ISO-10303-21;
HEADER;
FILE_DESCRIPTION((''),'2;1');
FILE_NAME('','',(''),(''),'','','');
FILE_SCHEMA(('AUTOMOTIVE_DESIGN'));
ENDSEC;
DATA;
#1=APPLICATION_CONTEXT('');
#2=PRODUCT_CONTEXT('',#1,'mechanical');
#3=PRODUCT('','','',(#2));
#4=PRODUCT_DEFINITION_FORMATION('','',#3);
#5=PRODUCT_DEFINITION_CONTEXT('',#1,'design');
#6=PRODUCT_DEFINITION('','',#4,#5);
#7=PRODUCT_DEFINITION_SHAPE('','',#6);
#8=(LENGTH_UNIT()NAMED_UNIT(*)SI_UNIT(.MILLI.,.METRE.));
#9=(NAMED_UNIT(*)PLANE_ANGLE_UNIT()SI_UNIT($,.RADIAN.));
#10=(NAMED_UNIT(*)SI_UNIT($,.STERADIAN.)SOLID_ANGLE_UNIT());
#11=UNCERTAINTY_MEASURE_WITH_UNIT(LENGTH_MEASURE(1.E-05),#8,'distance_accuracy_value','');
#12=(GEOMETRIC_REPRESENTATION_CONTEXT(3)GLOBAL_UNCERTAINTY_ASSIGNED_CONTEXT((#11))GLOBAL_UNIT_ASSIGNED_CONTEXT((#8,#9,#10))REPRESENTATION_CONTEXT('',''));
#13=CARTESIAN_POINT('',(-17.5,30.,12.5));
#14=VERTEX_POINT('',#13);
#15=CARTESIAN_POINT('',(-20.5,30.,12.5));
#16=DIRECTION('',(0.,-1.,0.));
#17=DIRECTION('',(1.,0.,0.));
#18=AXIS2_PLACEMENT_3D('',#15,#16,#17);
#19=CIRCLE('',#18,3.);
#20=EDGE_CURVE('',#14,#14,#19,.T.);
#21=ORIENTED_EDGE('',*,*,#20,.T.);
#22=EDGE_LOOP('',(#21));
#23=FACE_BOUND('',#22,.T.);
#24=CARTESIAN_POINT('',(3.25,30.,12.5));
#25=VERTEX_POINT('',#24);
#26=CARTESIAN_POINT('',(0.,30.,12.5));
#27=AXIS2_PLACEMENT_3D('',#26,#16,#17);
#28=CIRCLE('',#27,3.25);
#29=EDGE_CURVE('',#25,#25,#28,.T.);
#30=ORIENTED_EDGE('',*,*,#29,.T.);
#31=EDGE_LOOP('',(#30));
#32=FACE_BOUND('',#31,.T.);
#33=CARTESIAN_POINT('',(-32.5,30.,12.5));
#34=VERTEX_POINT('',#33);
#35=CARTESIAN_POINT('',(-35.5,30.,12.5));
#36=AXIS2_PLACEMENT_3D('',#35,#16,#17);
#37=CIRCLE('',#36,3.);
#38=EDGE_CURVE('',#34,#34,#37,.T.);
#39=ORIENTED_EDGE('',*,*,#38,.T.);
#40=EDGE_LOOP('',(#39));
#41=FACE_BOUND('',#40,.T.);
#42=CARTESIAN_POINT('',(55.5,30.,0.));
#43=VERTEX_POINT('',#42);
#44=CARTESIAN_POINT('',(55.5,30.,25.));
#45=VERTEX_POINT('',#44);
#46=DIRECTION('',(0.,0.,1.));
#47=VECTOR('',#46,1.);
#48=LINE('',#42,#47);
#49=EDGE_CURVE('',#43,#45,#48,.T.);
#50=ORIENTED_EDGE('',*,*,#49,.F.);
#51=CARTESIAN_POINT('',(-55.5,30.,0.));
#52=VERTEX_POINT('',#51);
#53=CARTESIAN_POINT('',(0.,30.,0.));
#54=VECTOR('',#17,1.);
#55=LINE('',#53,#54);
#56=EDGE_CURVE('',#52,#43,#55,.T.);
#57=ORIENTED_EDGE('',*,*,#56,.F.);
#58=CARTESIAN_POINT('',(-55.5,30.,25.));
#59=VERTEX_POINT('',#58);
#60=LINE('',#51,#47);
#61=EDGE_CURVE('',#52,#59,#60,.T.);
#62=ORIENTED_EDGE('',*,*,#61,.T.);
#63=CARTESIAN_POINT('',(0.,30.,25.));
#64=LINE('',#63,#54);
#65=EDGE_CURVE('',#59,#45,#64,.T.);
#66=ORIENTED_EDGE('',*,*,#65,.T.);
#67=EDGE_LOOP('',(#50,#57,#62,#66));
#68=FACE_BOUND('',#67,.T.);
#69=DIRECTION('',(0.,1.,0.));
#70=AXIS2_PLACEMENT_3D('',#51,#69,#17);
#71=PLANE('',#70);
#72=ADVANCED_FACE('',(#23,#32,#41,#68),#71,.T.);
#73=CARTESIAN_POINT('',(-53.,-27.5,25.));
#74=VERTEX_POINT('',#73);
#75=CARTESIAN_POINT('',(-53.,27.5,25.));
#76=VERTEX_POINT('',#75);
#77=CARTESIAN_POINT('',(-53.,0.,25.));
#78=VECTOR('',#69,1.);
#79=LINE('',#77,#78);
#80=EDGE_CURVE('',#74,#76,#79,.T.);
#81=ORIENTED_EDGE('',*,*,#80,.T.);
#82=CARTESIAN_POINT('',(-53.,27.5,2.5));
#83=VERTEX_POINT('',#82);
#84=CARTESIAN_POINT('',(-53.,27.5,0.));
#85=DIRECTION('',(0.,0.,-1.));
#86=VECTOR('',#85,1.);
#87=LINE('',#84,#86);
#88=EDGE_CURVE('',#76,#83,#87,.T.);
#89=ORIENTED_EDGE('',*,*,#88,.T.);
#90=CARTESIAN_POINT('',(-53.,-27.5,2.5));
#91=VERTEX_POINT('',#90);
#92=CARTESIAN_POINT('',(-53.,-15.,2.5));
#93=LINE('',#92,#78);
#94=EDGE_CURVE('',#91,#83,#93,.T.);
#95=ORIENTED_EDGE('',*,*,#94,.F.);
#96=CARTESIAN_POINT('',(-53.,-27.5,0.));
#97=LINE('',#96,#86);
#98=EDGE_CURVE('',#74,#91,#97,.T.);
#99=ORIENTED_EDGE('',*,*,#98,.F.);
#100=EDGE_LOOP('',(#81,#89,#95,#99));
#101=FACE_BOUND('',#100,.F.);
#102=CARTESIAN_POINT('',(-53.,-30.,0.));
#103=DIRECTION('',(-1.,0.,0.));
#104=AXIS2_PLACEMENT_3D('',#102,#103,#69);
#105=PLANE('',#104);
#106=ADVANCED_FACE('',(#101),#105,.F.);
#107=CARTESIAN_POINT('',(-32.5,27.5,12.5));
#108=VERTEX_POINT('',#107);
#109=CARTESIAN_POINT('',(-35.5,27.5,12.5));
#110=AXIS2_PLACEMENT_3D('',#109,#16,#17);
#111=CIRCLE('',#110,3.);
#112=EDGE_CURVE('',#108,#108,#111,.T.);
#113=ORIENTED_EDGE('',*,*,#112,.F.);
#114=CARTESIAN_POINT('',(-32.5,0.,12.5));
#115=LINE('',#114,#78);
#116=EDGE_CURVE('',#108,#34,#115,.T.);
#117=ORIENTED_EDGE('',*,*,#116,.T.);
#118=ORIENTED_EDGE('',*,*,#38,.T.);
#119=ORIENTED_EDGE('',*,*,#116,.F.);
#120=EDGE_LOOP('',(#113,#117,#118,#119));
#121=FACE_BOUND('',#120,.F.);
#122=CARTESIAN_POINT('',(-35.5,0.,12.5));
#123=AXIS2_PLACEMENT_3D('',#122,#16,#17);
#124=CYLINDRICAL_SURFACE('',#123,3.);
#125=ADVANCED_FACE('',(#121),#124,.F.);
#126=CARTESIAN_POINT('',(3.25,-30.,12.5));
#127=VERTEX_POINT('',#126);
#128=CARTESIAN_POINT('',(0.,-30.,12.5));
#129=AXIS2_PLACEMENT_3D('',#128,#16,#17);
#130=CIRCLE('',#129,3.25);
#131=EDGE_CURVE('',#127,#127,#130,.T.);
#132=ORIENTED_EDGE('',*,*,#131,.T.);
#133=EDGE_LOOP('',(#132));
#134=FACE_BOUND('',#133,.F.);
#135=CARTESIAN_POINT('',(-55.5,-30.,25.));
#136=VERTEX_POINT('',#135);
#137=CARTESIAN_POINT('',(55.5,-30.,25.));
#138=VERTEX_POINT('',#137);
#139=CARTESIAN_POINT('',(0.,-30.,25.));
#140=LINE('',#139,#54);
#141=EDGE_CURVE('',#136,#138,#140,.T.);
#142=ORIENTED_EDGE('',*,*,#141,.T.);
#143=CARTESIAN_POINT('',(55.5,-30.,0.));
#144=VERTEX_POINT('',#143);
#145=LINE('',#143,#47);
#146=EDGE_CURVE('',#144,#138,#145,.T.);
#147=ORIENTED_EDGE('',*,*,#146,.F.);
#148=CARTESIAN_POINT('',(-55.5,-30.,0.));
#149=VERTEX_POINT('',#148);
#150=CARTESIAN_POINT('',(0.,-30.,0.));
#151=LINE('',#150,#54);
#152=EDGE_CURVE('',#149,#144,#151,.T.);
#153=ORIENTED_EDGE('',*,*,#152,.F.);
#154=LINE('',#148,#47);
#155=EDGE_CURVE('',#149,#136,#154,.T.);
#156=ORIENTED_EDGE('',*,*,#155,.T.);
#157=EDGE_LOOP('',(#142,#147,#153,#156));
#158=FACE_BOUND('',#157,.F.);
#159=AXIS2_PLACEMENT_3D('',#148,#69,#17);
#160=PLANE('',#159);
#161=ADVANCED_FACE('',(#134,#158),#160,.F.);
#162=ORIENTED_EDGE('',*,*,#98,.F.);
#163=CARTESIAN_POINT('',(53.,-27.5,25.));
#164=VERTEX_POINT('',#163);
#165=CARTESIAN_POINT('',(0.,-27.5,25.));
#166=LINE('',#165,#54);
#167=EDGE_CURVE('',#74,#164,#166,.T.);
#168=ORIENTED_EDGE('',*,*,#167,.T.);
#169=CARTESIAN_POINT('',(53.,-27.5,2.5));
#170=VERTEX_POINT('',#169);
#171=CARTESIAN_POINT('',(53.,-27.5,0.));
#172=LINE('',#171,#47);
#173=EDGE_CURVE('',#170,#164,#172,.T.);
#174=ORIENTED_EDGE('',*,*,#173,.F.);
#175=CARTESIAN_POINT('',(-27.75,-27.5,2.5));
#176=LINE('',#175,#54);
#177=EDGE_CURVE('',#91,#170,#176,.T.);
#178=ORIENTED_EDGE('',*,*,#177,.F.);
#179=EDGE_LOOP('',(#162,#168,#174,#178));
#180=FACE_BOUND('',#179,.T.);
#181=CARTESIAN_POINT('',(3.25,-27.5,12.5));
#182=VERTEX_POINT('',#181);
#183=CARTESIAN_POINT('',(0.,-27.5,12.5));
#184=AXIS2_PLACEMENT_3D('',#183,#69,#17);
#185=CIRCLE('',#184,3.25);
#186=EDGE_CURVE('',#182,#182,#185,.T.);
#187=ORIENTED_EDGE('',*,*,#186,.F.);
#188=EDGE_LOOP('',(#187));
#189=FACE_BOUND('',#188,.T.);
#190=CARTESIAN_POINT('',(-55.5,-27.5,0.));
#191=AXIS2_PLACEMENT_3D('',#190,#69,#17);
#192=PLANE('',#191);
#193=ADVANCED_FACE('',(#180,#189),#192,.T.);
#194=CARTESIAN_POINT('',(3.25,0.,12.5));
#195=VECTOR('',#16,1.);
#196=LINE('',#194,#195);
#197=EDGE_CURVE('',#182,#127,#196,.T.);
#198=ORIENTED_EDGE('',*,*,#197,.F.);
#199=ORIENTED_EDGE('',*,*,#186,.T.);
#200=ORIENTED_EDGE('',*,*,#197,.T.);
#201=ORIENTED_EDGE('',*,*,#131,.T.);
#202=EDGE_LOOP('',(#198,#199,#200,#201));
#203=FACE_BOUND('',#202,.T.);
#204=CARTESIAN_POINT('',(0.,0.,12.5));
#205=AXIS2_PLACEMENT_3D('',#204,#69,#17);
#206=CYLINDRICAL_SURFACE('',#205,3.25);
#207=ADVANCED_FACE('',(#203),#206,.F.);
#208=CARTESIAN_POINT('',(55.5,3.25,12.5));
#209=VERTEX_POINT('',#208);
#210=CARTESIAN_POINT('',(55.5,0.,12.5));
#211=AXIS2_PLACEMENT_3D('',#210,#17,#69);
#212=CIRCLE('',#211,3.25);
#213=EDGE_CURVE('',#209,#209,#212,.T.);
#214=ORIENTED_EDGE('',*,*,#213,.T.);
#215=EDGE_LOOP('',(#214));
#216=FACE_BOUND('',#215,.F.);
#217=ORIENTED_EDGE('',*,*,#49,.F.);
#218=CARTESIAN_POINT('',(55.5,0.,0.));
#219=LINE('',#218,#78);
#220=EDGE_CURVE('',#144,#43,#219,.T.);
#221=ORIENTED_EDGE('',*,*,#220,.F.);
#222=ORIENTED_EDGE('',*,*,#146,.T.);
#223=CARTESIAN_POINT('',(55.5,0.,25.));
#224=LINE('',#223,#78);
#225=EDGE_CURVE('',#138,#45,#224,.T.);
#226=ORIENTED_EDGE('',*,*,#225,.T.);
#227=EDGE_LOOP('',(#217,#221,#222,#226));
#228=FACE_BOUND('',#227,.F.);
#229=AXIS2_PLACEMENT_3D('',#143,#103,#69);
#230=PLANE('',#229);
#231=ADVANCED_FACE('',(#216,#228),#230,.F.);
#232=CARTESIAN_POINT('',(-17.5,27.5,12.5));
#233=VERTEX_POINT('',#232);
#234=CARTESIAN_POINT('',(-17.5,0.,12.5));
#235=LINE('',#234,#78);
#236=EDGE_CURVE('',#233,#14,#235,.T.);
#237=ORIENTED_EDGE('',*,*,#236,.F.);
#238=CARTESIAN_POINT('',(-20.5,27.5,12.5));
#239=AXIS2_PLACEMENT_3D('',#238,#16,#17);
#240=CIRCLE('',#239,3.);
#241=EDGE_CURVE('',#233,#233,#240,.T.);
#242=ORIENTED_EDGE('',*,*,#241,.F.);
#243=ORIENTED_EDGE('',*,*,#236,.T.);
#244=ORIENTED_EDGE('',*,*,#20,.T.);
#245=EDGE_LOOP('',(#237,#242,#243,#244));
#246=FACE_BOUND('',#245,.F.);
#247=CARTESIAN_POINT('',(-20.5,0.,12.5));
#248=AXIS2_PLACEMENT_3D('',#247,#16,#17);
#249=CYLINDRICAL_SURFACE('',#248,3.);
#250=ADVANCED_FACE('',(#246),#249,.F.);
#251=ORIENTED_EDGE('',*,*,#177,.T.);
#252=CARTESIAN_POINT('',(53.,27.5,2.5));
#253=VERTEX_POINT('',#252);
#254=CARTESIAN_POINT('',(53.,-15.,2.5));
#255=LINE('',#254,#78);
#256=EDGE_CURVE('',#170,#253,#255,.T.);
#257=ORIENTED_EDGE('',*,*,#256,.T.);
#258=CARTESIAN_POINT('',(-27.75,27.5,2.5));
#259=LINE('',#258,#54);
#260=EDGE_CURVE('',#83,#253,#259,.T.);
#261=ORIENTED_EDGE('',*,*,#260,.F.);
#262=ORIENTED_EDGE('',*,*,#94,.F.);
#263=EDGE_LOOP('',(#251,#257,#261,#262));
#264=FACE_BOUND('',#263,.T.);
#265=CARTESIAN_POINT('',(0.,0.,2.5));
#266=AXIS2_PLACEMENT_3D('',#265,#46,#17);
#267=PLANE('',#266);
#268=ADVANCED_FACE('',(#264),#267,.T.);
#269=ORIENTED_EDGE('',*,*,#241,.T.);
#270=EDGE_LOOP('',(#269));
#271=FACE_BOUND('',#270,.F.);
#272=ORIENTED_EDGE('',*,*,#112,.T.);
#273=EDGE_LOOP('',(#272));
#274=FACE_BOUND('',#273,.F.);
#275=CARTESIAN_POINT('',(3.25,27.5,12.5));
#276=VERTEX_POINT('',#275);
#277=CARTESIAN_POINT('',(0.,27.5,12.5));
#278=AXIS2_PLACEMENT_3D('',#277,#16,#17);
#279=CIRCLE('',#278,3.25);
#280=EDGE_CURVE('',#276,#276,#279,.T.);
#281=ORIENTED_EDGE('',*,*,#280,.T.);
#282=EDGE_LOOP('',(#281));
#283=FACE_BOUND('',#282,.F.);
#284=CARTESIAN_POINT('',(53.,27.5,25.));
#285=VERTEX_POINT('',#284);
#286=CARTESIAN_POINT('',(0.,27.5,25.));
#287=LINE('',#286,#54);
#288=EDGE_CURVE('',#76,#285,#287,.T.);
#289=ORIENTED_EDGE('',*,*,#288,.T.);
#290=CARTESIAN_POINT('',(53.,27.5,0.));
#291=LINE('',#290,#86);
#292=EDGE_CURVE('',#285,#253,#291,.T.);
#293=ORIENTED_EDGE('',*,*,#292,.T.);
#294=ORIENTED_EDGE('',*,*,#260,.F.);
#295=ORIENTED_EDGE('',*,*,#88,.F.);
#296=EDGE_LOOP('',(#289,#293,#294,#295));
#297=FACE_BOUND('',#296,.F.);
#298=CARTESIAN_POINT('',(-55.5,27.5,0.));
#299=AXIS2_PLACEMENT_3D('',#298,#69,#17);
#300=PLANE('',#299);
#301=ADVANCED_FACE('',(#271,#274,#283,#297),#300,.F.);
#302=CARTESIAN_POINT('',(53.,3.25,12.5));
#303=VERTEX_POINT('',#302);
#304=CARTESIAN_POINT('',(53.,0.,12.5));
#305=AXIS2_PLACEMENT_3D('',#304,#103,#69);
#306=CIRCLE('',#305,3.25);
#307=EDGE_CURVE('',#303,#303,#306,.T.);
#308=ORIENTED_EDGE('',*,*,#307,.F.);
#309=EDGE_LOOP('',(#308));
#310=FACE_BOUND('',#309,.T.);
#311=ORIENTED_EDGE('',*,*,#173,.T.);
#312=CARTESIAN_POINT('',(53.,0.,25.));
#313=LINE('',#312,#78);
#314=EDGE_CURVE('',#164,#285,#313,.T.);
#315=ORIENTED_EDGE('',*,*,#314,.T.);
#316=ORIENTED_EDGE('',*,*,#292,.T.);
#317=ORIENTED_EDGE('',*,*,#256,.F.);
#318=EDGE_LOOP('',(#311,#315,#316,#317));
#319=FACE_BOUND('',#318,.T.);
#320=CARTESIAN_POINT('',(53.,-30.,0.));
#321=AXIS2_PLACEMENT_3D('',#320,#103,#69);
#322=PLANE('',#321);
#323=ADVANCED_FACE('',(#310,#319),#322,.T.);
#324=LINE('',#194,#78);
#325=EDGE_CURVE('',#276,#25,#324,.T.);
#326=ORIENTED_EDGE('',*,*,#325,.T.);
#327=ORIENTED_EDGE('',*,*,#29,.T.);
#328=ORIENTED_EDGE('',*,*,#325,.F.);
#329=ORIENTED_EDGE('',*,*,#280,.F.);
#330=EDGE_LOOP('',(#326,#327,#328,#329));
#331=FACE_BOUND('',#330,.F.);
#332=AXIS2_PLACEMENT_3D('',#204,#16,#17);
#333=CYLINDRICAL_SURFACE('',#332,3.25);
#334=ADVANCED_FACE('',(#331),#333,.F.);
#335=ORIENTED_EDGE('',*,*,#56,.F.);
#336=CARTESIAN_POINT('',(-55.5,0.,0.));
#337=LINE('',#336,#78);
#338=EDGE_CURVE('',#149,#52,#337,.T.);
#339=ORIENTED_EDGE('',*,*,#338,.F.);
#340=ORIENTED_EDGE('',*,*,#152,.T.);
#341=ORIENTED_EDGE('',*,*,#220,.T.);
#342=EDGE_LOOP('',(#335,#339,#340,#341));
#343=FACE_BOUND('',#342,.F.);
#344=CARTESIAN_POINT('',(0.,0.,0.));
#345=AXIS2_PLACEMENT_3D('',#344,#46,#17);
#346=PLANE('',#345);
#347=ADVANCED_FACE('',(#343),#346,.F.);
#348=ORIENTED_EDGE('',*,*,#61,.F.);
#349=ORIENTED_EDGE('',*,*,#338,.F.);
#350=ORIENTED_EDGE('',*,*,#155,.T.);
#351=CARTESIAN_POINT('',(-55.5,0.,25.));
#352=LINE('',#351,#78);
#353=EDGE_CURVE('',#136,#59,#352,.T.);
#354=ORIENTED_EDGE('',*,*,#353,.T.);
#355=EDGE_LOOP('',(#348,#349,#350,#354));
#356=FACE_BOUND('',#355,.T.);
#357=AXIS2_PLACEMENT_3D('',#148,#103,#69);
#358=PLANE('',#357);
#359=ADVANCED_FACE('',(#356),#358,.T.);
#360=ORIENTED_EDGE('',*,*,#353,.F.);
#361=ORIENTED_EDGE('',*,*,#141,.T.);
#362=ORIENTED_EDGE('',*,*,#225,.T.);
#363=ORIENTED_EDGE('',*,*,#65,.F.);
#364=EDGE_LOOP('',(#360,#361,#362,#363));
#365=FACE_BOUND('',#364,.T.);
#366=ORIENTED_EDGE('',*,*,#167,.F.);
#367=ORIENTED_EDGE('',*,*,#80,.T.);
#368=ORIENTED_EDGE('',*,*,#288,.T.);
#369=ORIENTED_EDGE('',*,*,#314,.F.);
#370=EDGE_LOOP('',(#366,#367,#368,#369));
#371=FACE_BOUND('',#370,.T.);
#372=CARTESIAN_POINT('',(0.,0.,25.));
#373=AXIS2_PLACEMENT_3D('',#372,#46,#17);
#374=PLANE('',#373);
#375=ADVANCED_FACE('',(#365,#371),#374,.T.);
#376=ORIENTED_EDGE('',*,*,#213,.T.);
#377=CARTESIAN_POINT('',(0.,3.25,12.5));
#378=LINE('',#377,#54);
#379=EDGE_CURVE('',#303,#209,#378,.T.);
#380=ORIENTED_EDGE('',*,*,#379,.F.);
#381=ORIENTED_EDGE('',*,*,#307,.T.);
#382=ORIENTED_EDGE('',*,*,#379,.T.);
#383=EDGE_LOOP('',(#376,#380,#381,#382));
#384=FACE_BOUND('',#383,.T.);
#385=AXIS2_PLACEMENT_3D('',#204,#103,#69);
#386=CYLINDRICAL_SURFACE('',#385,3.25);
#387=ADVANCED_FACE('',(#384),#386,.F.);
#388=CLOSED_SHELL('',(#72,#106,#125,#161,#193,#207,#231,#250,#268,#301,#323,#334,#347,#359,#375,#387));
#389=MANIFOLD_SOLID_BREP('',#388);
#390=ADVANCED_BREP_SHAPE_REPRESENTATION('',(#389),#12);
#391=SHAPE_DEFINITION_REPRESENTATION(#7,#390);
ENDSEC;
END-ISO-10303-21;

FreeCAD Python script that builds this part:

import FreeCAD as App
import Part
import Sketcher
Q = App.Units.Quantity


def faces_at(feature, points):
    """Names of the faces that lie closest to the given points."""
    faces = feature.Shape.Faces
    near = lambda p: min(range(len(faces)), key=lambda i: faces[i].distToShape(Part.Vertex(*p))[0])
    return sorted({f"Face{near(p) + 1}" for p in points})

doc = App.newDocument("Part")
body = doc.addObject("PartDesign::Body", "Body")

# Sketch on XY plane
sketch1 = doc.addObject("Sketcher::SketchObject", "Sketch")
body.addObject(sketch1)
sketch1.AttachmentSupport = (doc.XY_Plane, [""])
sketch1.MapMode = "FlatFace"
sketch1.addGeometry([
    Part.LineSegment(App.Vector(-56, 30, 0), App.Vector(-56, -30, 0)),
    Part.LineSegment(App.Vector(-56, -30, 0), App.Vector(56, -30, 0)),
    Part.LineSegment(App.Vector(56, -30, 0), App.Vector(56, 30, 0)),
    Part.LineSegment(App.Vector(56, 30, 0), App.Vector(-56, 30, 0)),
], False)
sketch1.addConstraint([
    Sketcher.Constraint("Coincident", 0, 2, 1, 1),
    Sketcher.Constraint("Coincident", 1, 2, 2, 1),
    Sketcher.Constraint("Coincident", 2, 2, 3, 1),
    Sketcher.Constraint("Coincident", 3, 2, 0, 1),
    Sketcher.Constraint("Vertical", 0),
    Sketcher.Constraint("Horizontal", 1),
    Sketcher.Constraint("Vertical", 2),
    Sketcher.Constraint("Horizontal", 3),
    Sketcher.Constraint("Symmetric", 0, 2, 2, 2, -1, 1),
    Sketcher.Constraint("DistanceX", 1, 1, 1, 2, Q("111 mm")),
    Sketcher.Constraint("DistanceY", 0, 2, 0, 1, Q("60 mm")),
])
pad1 = doc.addObject("PartDesign::Pad", "Pad")
body.addObject(pad1)
pad1.Profile = sketch1
pad1.Length = 25
doc.recompute()

thickness = doc.addObject("PartDesign::Thickness", "Thickness")
body.addObject(thickness)
thickness.Base = (pad1, faces_at(pad1, [(0, 0, 25)]))
thickness.Value = 2.5
thickness.Reversed = True
thickness.Join = "Arc"

# Sketch on YZ plane
sketch2 = doc.addObject("Sketcher::SketchObject", "Sketch001")
body.addObject(sketch2)
sketch2.AttachmentSupport = (doc.YZ_Plane, [""])
sketch2.MapMode = "FlatFace"
sketch2.addGeometry(Part.Circle(App.Vector(0, 12.5, 0), App.Vector(0, 0, 1), 3.2), False)
sketch2.addConstraint([
    Sketcher.Constraint("PointOnObject", 0, 3, -2),
    Sketcher.Constraint("Diameter", 0, Q("6.5 mm")),
    Sketcher.Constraint("DistanceY", -1, 1, 0, 3, Q("12.5 mm")),
])
pocket1 = doc.addObject("PartDesign::Pocket", "Pocket")
body.addObject(pocket1)
pocket1.Profile = sketch2
pocket1.Type = "ThroughAll"
pocket1.Reversed = True

# Sketch on XZ plane
sketch3 = doc.addObject("Sketcher::SketchObject", "Sketch002")
body.addObject(sketch3)
sketch3.AttachmentSupport = (doc.XZ_Plane, [""])
sketch3.MapMode = "FlatFace"
sketch3.addGeometry(Part.Circle(App.Vector(0, 12.5, 0), App.Vector(0, 0, 1), 3.2), False)
sketch3.addConstraint([
    Sketcher.Constraint("PointOnObject", 0, 3, -2),
    Sketcher.Constraint("Diameter", 0, Q("6.5 mm")),
    Sketcher.Constraint("DistanceY", -1, 1, 0, 3, Q("12.5 mm")),
])
pocket2 = doc.addObject("PartDesign::Pocket", "Pocket001")
body.addObject(pocket2)
pocket2.Profile = sketch3
pocket2.Type = "ThroughAll"
pocket2.Midplane = True

# Sketch on XZ plane
sketch4 = doc.addObject("Sketcher::SketchObject", "Sketch003")
body.addObject(sketch4)
sketch4.AttachmentSupport = (doc.XZ_Plane, [""])
sketch4.MapMode = "FlatFace"
sketch4.addGeometry([
    Part.Circle(App.Vector(-35.5, 12.5, 0), App.Vector(0, 0, 1), 3),
    Part.Circle(App.Vector(-20.5, 12.5, 0), App.Vector(0, 0, 1), 3),
], False)
sketch4.addConstraint([
    Sketcher.Constraint("Equal", 0, 1),
    Sketcher.Constraint("Horizontal", 0, 3, 1, 3),
    Sketcher.Constraint("Diameter", 0, Q("6 mm")),
    Sketcher.Constraint("DistanceX", 0, 3, 1, 3, Q("15 mm")),
    Sketcher.Constraint("DistanceX", 0, 3, -1, 1, Q("35.5 mm")),
    Sketcher.Constraint("DistanceY", -1, 1, 0, 3, Q("12.5 mm")),
])
pocket3 = doc.addObject("PartDesign::Pocket", "Pocket002")
body.addObject(pocket3)
pocket3.Profile = sketch4
pocket3.Type = "ThroughAll"

doc.recompute()
